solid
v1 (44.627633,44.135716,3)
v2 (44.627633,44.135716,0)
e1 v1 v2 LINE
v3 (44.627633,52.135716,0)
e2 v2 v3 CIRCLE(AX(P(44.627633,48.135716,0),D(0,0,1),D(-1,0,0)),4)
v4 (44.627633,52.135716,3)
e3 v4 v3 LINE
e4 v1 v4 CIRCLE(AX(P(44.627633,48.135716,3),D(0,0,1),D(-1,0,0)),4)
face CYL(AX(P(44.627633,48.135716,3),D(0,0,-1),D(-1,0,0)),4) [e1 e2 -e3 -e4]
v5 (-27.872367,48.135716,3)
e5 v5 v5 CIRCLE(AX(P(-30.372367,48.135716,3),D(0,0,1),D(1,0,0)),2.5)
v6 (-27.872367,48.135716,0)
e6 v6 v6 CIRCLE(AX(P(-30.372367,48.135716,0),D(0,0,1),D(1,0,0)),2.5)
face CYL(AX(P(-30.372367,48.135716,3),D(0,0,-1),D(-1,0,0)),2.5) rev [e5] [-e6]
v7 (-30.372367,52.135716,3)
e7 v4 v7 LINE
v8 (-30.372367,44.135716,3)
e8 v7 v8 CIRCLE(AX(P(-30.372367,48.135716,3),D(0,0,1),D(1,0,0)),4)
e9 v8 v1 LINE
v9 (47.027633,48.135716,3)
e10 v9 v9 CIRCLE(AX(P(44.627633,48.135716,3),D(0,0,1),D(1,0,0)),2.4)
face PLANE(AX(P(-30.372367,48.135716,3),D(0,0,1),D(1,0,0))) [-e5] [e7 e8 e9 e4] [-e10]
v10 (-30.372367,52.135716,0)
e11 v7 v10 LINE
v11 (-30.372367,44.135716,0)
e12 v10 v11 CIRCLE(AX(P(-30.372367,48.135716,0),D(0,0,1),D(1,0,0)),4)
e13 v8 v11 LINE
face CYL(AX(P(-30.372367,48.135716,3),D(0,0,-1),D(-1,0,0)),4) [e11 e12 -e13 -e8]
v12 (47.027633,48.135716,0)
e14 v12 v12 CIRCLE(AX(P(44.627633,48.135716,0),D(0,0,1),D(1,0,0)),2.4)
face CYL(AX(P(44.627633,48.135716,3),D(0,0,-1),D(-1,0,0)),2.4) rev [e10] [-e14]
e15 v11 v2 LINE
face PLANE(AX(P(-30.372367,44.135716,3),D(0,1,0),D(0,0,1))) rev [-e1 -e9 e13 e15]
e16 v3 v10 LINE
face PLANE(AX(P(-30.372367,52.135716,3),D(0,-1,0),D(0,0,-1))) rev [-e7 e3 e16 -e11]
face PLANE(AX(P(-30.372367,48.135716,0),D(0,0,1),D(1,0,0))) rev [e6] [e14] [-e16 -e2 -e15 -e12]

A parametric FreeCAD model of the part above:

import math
import FreeCAD as App
import Part
import Sketcher

doc = App.newDocument("Part")
params = doc.addObject("Spreadsheet::Sheet", "Params")
for row, (alias, value) in enumerate([
    ("sketch1_diameter", "5 mm"),
    ("sketch1_radius", "4 mm"),
    ("sketch1_diameter2", "4.8 mm"),
    ("sketch1_width", "75 mm"),
    ("pad1_length", "3 mm"),
], start=1):
    params.set(f"A{row}", alias)
    params.set(f"B{row}", "=" + value)
    params.setAlias(f"B{row}", alias)

body = doc.addObject("PartDesign::Body", "Body")

# Sketch on XY plane
sketch1 = body.newObject("Sketcher::SketchObject", "Sketch")
sketch1.AttachmentSupport = (doc.getObject("XY_Plane"), [""])
sketch1.MapMode = "FlatFace"
sketch1.addGeometry([
    Part.LineSegment(App.Vector(44.6, 52.1, 0), App.Vector(-30.4, 52.1, 0)),  # 0
    Part.ArcOfCircle(Part.Circle(App.Vector(-30.4, 48.1, 0), App.Vector(0, 0, 1), 4), math.radians(90), math.radians(270)),  # 1
    Part.LineSegment(App.Vector(-30.4, 44.1, 0), App.Vector(44.6, 44.1, 0)),  # 2
    Part.ArcOfCircle(Part.Circle(App.Vector(44.6, 48.1, 0), App.Vector(0, 0, 1), 4), math.radians(-90), math.radians(90)),  # 3
    Part.Circle(App.Vector(44.6, 48.1, 0), App.Vector(0, 0, 1), 2.4),  # 4
    Part.Circle(App.Vector(-30.4, 48.1, 0), App.Vector(0, 0, 1), 2.5),  # 5
], False)
sketch1.addConstraint([
    Sketcher.Constraint("Tangent", 0, 2, 1, 1),
    Sketcher.Constraint("Tangent", 1, 2, 2, 1),
    Sketcher.Constraint("Tangent", 2, 2, 3, 1),
    Sketcher.Constraint("Tangent", 3, 2, 0, 1),
    Sketcher.Constraint("Horizontal", 0),
    Sketcher.Constraint("Horizontal", 2),
    Sketcher.Constraint("Coincident", 4, 3, 3, 3),
    Sketcher.Constraint("Coincident", 5, 3, 1, 3),
    Sketcher.Constraint("Diameter", 5, 5.0),
    Sketcher.Constraint("Radius", 1, 4.0),
    Sketcher.Constraint("Diameter", 4, 4.8),
    Sketcher.Constraint("DistanceX", 0, 2, 0, 1, 75.0),
    Sketcher.Constraint("DistanceX", 1, 3, -1, 1, 30.372367),
    Sketcher.Constraint("DistanceY", -1, 1, 1, 3, 48.135716),
])
sketch1.setExpression("Constraints[8]", "Params.sketch1_diameter")
sketch1.setExpression("Constraints[9]", "Params.sketch1_radius")
sketch1.setExpression("Constraints[10]", "Params.sketch1_diameter2")
sketch1.setExpression("Constraints[11]", "Params.sketch1_width")
pad1 = body.newObject("PartDesign::Pad", "Pad")
pad1.Profile = sketch1
pad1.setExpression("Length", "Params.pad1_length")

doc.recompute()
